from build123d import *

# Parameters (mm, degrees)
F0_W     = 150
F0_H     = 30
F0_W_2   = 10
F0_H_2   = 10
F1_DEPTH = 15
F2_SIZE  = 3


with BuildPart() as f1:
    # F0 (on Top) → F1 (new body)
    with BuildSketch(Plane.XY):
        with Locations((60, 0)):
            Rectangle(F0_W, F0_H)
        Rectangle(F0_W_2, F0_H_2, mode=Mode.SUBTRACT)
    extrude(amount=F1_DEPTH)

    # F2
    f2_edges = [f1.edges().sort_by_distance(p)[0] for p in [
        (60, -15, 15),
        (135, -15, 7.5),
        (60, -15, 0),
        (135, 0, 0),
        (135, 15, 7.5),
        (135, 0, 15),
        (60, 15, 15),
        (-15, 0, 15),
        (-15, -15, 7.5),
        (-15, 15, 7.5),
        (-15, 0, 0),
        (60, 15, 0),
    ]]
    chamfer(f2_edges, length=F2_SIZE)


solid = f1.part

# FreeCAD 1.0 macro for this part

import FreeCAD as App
import Part
import Sketcher

V = App.Vector
Q = App.Units.Quantity


def edges_at(feature, points):
    """Names of the edges that pass closest to the given points."""
    edges = feature.Shape.Edges
    near = lambda p: min(range(len(edges)), key=lambda i: edges[i].distToShape(Part.Vertex(*p))[0])
    return sorted({f"Edge{near(p) + 1}" for p in points})

doc = App.newDocument("Part")
body = doc.addObject("PartDesign::Body", "Body")

sketch1 = doc.addObject("Sketcher::SketchObject", "Sketch")
body.addObject(sketch1)
sketch1.AttachmentSupport = (doc.XY_Plane, [""])
sketch1.MapMode = "FlatFace"
sketch1.addGeometry([
    Part.LineSegment(V(-15, 15, 0), V(-15, -15, 0)),
    Part.LineSegment(V(-15, -15, 0), V(135, -15, 0)),
    Part.LineSegment(V(135, -15, 0), V(135, 15, 0)),
    Part.LineSegment(V(135, 15, 0), V(-15, 15, 0)),
    Part.LineSegment(V(5, -5, 0), V(-5, -5, 0)),
    Part.LineSegment(V(-5, -5, 0), V(-5, 5, 0)),
    Part.LineSegment(V(-5, 5, 0), V(5, 5, 0)),
    Part.LineSegment(V(5, 5, 0), V(5, -5, 0)),
], False)
sketch1.addConstraint([
    Sketcher.Constraint("Coincident", 0, 2, 1, 1),
    Sketcher.Constraint("Coincident", 1, 2, 2, 1),
    Sketcher.Constraint("Coincident", 2, 2, 3, 1),
    Sketcher.Constraint("Coincident", 3, 2, 0, 1),
    Sketcher.Constraint("Coincident", 4, 2, 5, 1),
    Sketcher.Constraint("Coincident", 5, 2, 6, 1),
    Sketcher.Constraint("Coincident", 6, 2, 7, 1),
    Sketcher.Constraint("Coincident", 7, 2, 4, 1),
    Sketcher.Constraint("Vertical", 0),
    Sketcher.Constraint("Horizontal", 1),
    Sketcher.Constraint("Vertical", 2),
    Sketcher.Constraint("Horizontal", 3),
    Sketcher.Constraint("Horizontal", 4),
    Sketcher.Constraint("Vertical", 5),
    Sketcher.Constraint("Horizontal", 6),
    Sketcher.Constraint("Vertical", 7),
    Sketcher.Constraint("Symmetric", 4, 2, 6, 2, -1, 1),
    Sketcher.Constraint("Equal", 6, 5),
    Sketcher.Constraint("DistanceX", 1, 1, 1, 2, Q("150 mm")),
    Sketcher.Constraint("DistanceX", 4, 2, 4, 1, Q("10 mm")),
    Sketcher.Constraint("DistanceY", 0, 2, 0, 1, Q("30 mm")),
    Sketcher.Constraint("DistanceX", 0, 2, -1, 1, Q("15 mm")),
    Sketcher.Constraint("DistanceY", 0, 2, -1, 1, Q("15 mm")),
])
pad1 = doc.addObject("PartDesign::Pad", "Pad")
body.addObject(pad1)
pad1.Profile = sketch1
pad1.Length = 15
doc.recompute()

chamfer = doc.addObject("PartDesign::Chamfer", "Chamfer")
body.addObject(chamfer)
chamfer.Base = (pad1, edges_at(pad1, [
    (60, -15, 15),
    (135, -15, 7.5),
    (60, -15, 0),
    (135, 0, 0),
    (135, 15, 7.5),
    (135, 0, 15),
    (60, 15, 15),
    (-15, 0, 15),
    (-15, -15, 7.5),
    (-15, 15, 7.5),
    (-15, 0, 0),
    (60, 15, 0),
]))
chamfer.Size = 3

doc.recompute()
